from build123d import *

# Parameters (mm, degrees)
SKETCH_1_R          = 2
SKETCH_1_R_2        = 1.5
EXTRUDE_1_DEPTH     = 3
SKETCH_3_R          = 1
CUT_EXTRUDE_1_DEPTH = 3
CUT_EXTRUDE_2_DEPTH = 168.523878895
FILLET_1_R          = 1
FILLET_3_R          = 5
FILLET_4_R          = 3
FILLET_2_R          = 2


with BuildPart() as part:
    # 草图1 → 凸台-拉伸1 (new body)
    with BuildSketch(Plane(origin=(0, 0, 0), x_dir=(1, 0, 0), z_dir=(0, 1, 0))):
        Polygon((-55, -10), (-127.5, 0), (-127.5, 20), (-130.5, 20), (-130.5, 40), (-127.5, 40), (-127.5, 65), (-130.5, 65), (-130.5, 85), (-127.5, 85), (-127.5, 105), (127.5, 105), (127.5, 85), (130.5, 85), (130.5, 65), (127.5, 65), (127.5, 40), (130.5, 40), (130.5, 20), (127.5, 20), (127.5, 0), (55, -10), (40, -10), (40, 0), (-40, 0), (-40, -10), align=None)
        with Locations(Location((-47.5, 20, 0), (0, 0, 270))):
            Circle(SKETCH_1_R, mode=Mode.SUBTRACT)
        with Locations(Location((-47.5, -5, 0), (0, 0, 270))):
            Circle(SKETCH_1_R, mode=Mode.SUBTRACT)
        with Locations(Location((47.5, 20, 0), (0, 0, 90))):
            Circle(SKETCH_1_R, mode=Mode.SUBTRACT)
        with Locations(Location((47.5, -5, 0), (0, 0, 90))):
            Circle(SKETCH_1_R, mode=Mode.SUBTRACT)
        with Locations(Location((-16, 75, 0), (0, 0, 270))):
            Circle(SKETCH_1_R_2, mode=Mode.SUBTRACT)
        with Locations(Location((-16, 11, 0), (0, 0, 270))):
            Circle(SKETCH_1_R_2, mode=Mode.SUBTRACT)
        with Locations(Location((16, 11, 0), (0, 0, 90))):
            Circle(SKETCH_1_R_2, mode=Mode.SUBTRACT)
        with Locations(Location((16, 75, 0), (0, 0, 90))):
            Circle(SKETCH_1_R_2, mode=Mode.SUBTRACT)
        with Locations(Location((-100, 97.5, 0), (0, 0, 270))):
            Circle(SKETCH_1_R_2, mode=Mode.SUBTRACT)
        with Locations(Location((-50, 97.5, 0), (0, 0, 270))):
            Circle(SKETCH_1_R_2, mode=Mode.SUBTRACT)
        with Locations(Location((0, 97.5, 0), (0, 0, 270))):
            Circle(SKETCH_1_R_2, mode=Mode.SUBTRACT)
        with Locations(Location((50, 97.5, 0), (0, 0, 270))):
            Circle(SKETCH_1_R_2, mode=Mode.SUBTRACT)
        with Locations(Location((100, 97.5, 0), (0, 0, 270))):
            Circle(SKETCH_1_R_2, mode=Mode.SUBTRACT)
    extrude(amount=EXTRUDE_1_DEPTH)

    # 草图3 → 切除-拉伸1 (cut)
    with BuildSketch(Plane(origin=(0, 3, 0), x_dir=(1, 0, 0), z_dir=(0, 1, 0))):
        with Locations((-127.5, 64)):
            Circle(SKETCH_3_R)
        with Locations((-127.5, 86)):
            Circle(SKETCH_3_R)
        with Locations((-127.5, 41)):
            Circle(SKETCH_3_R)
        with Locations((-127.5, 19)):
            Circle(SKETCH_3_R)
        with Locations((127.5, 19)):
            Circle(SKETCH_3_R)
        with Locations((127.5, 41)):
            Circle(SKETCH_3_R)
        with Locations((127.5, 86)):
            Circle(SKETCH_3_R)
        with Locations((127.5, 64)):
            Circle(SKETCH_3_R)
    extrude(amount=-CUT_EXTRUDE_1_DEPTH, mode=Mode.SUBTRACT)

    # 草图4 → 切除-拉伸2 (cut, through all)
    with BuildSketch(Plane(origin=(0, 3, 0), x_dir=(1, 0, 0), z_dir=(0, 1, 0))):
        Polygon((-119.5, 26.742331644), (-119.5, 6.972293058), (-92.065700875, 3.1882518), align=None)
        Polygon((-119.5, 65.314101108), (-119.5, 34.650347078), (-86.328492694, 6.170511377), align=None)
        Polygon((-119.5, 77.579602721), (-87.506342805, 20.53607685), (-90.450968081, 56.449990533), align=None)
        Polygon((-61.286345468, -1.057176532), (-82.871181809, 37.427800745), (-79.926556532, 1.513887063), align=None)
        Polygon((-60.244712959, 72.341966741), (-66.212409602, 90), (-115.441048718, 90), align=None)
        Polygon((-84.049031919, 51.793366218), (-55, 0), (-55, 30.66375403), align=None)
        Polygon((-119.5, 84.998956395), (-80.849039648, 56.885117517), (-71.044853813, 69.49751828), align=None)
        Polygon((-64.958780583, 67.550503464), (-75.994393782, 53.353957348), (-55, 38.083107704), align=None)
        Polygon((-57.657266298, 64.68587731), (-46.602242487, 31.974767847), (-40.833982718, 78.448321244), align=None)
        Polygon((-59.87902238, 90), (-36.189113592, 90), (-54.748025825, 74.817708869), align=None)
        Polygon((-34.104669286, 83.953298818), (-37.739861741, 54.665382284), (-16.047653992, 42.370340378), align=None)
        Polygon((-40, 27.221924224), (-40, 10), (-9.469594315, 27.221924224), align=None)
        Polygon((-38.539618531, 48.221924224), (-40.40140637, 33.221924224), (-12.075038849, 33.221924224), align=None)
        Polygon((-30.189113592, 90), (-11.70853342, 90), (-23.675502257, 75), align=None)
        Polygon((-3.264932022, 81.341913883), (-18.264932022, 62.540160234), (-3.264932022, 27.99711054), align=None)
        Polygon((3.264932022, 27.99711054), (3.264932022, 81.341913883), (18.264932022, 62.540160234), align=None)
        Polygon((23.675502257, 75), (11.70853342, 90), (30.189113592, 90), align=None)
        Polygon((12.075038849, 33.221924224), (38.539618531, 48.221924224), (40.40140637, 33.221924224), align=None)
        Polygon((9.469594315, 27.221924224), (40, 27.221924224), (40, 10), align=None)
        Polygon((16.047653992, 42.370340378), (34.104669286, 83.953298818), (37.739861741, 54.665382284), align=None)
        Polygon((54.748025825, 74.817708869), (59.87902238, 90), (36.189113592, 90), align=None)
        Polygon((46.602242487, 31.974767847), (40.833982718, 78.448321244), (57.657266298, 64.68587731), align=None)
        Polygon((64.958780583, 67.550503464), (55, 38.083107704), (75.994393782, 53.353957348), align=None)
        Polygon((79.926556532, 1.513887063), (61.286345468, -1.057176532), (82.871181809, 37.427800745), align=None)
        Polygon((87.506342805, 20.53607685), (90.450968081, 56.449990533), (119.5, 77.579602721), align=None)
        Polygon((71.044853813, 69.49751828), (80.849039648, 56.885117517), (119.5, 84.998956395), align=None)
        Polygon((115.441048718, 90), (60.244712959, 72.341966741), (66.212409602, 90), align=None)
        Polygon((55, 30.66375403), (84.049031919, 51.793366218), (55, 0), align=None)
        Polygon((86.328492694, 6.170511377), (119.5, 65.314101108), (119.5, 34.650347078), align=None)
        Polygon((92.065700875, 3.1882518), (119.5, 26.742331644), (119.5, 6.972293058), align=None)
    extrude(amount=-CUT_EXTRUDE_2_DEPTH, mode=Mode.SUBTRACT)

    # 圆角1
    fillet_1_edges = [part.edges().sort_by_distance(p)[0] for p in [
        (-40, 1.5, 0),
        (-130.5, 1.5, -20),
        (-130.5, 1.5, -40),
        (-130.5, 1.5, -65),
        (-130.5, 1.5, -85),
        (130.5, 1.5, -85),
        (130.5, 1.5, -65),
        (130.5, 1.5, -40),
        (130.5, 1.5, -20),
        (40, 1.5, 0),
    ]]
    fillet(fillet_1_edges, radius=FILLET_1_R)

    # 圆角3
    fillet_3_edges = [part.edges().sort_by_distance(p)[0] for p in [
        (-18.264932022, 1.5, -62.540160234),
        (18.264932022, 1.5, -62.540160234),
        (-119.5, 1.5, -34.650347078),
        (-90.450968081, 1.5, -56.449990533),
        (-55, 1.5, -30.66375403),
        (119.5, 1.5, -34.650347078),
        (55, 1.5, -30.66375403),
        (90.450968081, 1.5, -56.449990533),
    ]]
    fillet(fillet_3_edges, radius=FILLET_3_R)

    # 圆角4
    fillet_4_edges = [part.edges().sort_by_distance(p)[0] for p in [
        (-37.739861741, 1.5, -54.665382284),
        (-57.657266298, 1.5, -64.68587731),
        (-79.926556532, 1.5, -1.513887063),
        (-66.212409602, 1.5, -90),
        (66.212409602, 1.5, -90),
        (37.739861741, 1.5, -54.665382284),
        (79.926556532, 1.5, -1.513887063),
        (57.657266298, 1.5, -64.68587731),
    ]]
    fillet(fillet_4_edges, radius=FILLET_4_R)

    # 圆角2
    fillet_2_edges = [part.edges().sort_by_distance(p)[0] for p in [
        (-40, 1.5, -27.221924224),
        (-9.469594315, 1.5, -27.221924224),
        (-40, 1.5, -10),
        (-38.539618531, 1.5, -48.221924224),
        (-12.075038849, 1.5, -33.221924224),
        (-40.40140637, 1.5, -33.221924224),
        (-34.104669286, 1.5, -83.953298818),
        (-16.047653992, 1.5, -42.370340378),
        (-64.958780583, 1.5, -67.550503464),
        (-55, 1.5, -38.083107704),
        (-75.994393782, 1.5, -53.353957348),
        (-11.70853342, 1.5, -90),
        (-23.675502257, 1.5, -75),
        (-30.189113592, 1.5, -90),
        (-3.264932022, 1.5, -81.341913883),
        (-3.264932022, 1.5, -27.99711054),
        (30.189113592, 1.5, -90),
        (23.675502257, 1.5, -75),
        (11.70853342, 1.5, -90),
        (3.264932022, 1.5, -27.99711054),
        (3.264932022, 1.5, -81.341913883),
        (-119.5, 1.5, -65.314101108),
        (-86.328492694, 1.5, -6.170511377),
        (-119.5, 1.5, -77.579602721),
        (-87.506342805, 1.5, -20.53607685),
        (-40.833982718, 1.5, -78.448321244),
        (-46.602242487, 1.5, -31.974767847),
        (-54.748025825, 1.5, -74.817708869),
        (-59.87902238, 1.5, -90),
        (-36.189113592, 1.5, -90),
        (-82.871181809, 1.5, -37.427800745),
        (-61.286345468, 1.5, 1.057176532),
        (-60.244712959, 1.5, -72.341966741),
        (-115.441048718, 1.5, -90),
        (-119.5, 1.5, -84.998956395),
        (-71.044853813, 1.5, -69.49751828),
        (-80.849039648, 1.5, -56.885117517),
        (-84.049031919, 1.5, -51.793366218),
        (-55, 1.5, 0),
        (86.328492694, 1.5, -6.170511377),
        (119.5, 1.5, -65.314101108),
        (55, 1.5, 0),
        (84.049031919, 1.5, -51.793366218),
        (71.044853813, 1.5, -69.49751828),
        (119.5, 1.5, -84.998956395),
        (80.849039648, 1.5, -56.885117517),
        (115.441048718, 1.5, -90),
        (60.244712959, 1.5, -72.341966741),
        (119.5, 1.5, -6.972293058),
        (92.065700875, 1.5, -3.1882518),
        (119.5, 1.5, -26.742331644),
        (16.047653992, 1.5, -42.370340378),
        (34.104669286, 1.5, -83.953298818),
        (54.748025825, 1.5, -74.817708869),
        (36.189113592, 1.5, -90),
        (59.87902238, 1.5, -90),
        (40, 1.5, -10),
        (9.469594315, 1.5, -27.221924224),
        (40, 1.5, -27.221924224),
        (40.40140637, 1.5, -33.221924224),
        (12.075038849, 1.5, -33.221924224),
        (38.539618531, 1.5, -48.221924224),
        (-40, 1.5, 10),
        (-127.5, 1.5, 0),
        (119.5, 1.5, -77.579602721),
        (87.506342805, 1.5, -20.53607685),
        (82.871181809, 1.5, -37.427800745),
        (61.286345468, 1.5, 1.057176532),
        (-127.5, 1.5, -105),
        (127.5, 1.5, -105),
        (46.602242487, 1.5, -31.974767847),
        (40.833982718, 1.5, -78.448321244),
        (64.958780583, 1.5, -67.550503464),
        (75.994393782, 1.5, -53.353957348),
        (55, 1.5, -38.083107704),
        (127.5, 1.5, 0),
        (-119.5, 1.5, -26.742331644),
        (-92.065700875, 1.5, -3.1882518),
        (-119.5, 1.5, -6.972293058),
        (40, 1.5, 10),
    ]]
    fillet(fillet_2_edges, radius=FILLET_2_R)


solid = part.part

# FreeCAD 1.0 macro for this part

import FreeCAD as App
import Part
import Sketcher
from FreeCAD import Vector
Q = App.Units.Quantity


def edges_at(feature, points):
    """Names of the edges that pass closest to the given points."""
    edges = feature.Shape.Edges
    near = lambda p: min(range(len(edges)), key=lambda i: edges[i].distToShape(Part.Vertex(*p))[0])
    return sorted({f"Edge{near(p) + 1}" for p in points})

doc = App.newDocument("Part")
body = doc.addObject("PartDesign::Body", "Body")

sketch1 = body.newObject("Sketcher::SketchObject", "Sketch")
sketch1.AttachmentSupport = (doc.getObject("XZ_Plane"), [""])
sketch1.MapMode = "FlatFace"
sketch1.addGeometry([
    Part.LineSegment(Vector(-127.5, 0, 0), Vector(-55, 10, 0)),
    Part.LineSegment(Vector(-55, 10, 0), Vector(-40, 10, 0)),
    Part.LineSegment(Vector(-40, 10, 0), Vector(-40, 0, 0)),
    Part.LineSegment(Vector(-40, 0, 0), Vector(40, 0, 0)),
    Part.LineSegment(Vector(40, 0, 0), Vector(40, 10, 0)),
    Part.LineSegment(Vector(40, 10, 0), Vector(55, 10, 0)),
    Part.LineSegment(Vector(55, 10, 0), Vector(127.5, 0, 0)),
    Part.LineSegment(Vector(127.5, 0, 0), Vector(127.5, -20, 0)),
    Part.LineSegment(Vector(127.5, -20, 0), Vector(130.5, -20, 0)),
    Part.LineSegment(Vector(130.5, -20, 0), Vector(130.5, -40, 0)),
    Part.LineSegment(Vector(130.5, -40, 0), Vector(127.5, -40, 0)),
    Part.LineSegment(Vector(127.5, -40, 0), Vector(127.5, -65, 0)),
    Part.LineSegment(Vector(127.5, -65, 0), Vector(130.5, -65, 0)),
    Part.LineSegment(Vector(130.5, -65, 0), Vector(130.5, -85, 0)),
    Part.LineSegment(Vector(130.5, -85, 0), Vector(127.5, -85, 0)),
    Part.LineSegment(Vector(127.5, -85, 0), Vector(127.5, -105, 0)),
    Part.LineSegment(Vector(127.5, -105, 0), Vector(-127.5, -105, 0)),
    Part.LineSegment(Vector(-127.5, -105, 0), Vector(-127.5, -85, 0)),
    Part.LineSegment(Vector(-127.5, -85, 0), Vector(-130.5, -85, 0)),
    Part.LineSegment(Vector(-130.5, -85, 0), Vector(-130.5, -65, 0)),
    Part.LineSegment(Vector(-130.5, -65, 0), Vector(-127.5, -65, 0)),
    Part.LineSegment(Vector(-127.5, -65, 0), Vector(-127.5, -40, 0)),
    Part.LineSegment(Vector(-127.5, -40, 0), Vector(-130.5, -40, 0)),
    Part.LineSegment(Vector(-130.5, -40, 0), Vector(-130.5, -20, 0)),
    Part.LineSegment(Vector(-130.5, -20, 0), Vector(-127.5, -20, 0)),
    Part.LineSegment(Vector(-127.5, -20, 0), Vector(-127.5, 0, 0)),
    Part.Circle(Vector(47.5, 5, 0), Vector(0, 0, 1), 2),
    Part.Circle(Vector(16, -11, 0), Vector(0, 0, 1), 1.5),
    Part.Circle(Vector(47.5, -20, 0), Vector(0, 0, 1), 2),
    Part.Circle(Vector(-47.5, 5, 0), Vector(0, 0, 1), 2),
    Part.Circle(Vector(-16, -11, 0), Vector(0, 0, 1), 1.5),
    Part.Circle(Vector(-47.5, -20, 0), Vector(0, 0, 1), 2),
    Part.Circle(Vector(100, -97.5, 0), Vector(0, 0, 1), 1.5),
    Part.Circle(Vector(16, -75, 0), Vector(0, 0, 1), 1.5),
    Part.Circle(Vector(50, -97.5, 0), Vector(0, 0, 1), 1.5),
    Part.Circle(Vector(-16, -75, 0), Vector(0, 0, 1), 1.5),
    Part.Circle(Vector(0, -97.5, 0), Vector(0, 0, 1), 1.5),
    Part.Circle(Vector(-50, -97.5, 0), Vector(0, 0, 1), 1.5),
    Part.Circle(Vector(-100, -97.5, 0), Vector(0, 0, 1), 1.5),
], False)
sketch1.addConstraint([
    Sketcher.Constraint("Coincident", 0, 2, 1, 1),
    Sketcher.Constraint("Coincident", 1, 2, 2, 1),
    Sketcher.Constraint("Coincident", 2, 2, 3, 1),
    Sketcher.Constraint("Coincident", 3, 2, 4, 1),
    Sketcher.Constraint("Coincident", 4, 2, 5, 1),
    Sketcher.Constraint("Coincident", 5, 2, 6, 1),
    Sketcher.Constraint("Coincident", 6, 2, 7, 1),
    Sketcher.Constraint("Coincident", 7, 2, 8, 1),
    Sketcher.Constraint("Coincident", 8, 2, 9, 1),
    Sketcher.Constraint("Coincident", 9, 2, 10, 1),
    Sketcher.Constraint("Coincident", 10, 2, 11, 1),
    Sketcher.Constraint("Coincident", 11, 2, 12, 1),
    Sketcher.Constraint("Coincident", 12, 2, 13, 1),
    Sketcher.Constraint("Coincident", 13, 2, 14, 1),
    Sketcher.Constraint("Coincident", 14, 2, 15, 1),
    Sketcher.Constraint("Coincident", 15, 2, 16, 1),
    Sketcher.Constraint("Coincident", 16, 2, 17, 1),
    Sketcher.Constraint("Coincident", 17, 2, 18, 1),
    Sketcher.Constraint("Coincident", 18, 2, 19, 1),
    Sketcher.Constraint("Coincident", 19, 2, 20, 1),
    Sketcher.Constraint("Coincident", 20, 2, 21, 1),
    Sketcher.Constraint("Coincident", 21, 2, 22, 1),
    Sketcher.Constraint("Coincident", 22, 2, 23, 1),
    Sketcher.Constraint("Coincident", 23, 2, 24, 1),
    Sketcher.Constraint("Coincident", 24, 2, 25, 1),
    Sketcher.Constraint("Coincident", 25, 2, 0, 1),
    Sketcher.Constraint("Horizontal", 1),
    Sketcher.Constraint("Vertical", 2),
    Sketcher.Constraint("Horizontal", 3),
    Sketcher.Constraint("Vertical", 4),
    Sketcher.Constraint("Horizontal", 5),
    Sketcher.Constraint("Vertical", 7),
    Sketcher.Constraint("Horizontal", 8),
    Sketcher.Constraint("Vertical", 9),
    Sketcher.Constraint("Horizontal", 10),
    Sketcher.Constraint("Vertical", 11),
    Sketcher.Constraint("Horizontal", 12),
    Sketcher.Constraint("Vertical", 13),
    Sketcher.Constraint("Horizontal", 14),
    Sketcher.Constraint("Vertical", 15),
    Sketcher.Constraint("Horizontal", 16),
    Sketcher.Constraint("Vertical", 17),
    Sketcher.Constraint("Horizontal", 18),
    Sketcher.Constraint("Vertical", 19),
    Sketcher.Constraint("Horizontal", 20),
    Sketcher.Constraint("Vertical", 21),
    Sketcher.Constraint("Horizontal", 22),
    Sketcher.Constraint("Vertical", 23),
    Sketcher.Constraint("Horizontal", 24),
    Sketcher.Constraint("Vertical", 25),
    Sketcher.Constraint("Equal", 26, 28),
    Sketcher.Constraint("Equal", 28, 29),
    Sketcher.Constraint("Equal", 27, 30),
    Sketcher.Constraint("Equal", 29, 31),
    Sketcher.Constraint("Equal", 30, 32),
    Sketcher.Constraint("Equal", 32, 33),
    Sketcher.Constraint("Equal", 33, 34),
    Sketcher.Constraint("Equal", 34, 35),
    Sketcher.Constraint("Equal", 35, 36),
    Sketcher.Constraint("Equal", 36, 37),
    Sketcher.Constraint("Equal", 37, 38),
    Sketcher.Constraint("Symmetric", 2, 2, 3, 2, -1, 1),
    Sketcher.Constraint("Symmetric", 6, 2, 25, 2, -1, 1),
    Sketcher.Constraint("Symmetric", 26, 3, 29, 3, -2),
    Sketcher.Constraint("Symmetric", 27, 3, 30, 3, -2),
    Sketcher.Constraint("Symmetric", 28, 3, 31, 3, -2),
    Sketcher.Constraint("Symmetric", 33, 3, 35, 3, -2),
    Sketcher.Constraint("Symmetric", 34, 3, 37, 3, -2),
    Sketcher.Constraint("Symmetric", 32, 3, 38, 3, -2),
    Sketcher.Constraint("Symmetric", 0, 2, 5, 2, -2),
    Sketcher.Constraint("Symmetric", 14, 2, 17, 2, -2),
    Sketcher.Constraint("Symmetric", 12, 2, 19, 2, -2),
    Sketcher.Constraint("Symmetric", 10, 2, 21, 2, -2),
    Sketcher.Constraint("Symmetric", 8, 2, 23, 2, -2),
    Sketcher.Constraint("PointOnObject", 36, 3, -2),
    Sketcher.Constraint("PointOnObject", 6, 2, -1),
    Sketcher.Constraint("Horizontal", 32, 3, 34, 3),
    Sketcher.Constraint("Horizontal", 34, 3, 36, 3),
    Sketcher.Constraint("Horizontal", 31, 3, 7, 2),
    Sketcher.Constraint("Vertical", 26, 3, 28, 3),
    Sketcher.Constraint("Vertical", 27, 3, 33, 3),
    Sketcher.Constraint("Vertical", 7, 2, 10, 2),
    Sketcher.Constraint("Vertical", 9, 2, 12, 2),
    Sketcher.Constraint("Vertical", 11, 2, 14, 2),
    Sketcher.Constraint("Equal", 7, 9),
    Sketcher.Constraint("Equal", 9, 13),
    Sketcher.Constraint("Equal", 13, 15),
    Sketcher.Constraint("Diameter", 26, Q("4 mm")),
    Sketcher.Constraint("Diameter", 27, Q("3 mm")),
    Sketcher.Constraint("DistanceX", 1, 1, 1, 2, Q("15 mm")),
    Sketcher.Constraint("DistanceX", 3, 1, 3, 2, Q("80 mm")),
    Sketcher.Constraint("DistanceX", 8, 1, 8, 2, Q("3 mm")),
    Sketcher.Constraint("DistanceX", 16, 2, 16, 1, Q("255 mm")),
    Sketcher.Constraint("DistanceY", 2, 2, 2, 1, Q("10 mm")),
    Sketcher.Constraint("DistanceY", 7, 2, 7, 1, Q("20 mm")),
    Sketcher.Constraint("DistanceY", 11, 2, 11, 1, Q("25 mm")),
    Sketcher.Constraint("DistanceY", -1, 1, 26, 3, Q("5 mm")),
    Sketcher.Constraint("DistanceX", -1, 1, 27, 3, Q("16 mm")),
    Sketcher.Constraint("DistanceY", 27, 3, -1, 1, Q("11 mm")),
    Sketcher.Constraint("DistanceX", -1, 1, 32, 3, Q("100 mm")),
    Sketcher.Constraint("DistanceY", 33, 3, -1, 1, Q("75 mm")),
    Sketcher.Constraint("DistanceX", -1, 1, 34, 3, Q("50 mm")),
    Sketcher.Constraint("DistanceX", 29, 3, 26, 3, Q("95 mm")),
    Sketcher.Constraint("DistanceY", 32, 3, -1, 1, Q("97.5 mm")),
])
pad1 = body.newObject("PartDesign::Pad", "Pad")
pad1.Profile = sketch1
pad1.Length = 3
pad1.Reversed = True

sketch2 = body.newObject("Sketcher::SketchObject", "Sketch001")
sketch2.AttachmentSupport = (doc.getObject("XZ_Plane"), [""])
sketch2.MapMode = "FlatFace"
sketch2.AttachmentOffset = App.Placement(Vector(0, 0, -3), App.Rotation())
sketch2.addGeometry([
    Part.Circle(Vector(-127.5, -64, 0), Vector(0, 0, 1), 1),
    Part.Circle(Vector(-127.5, -86, 0), Vector(0, 0, 1), 1),
    Part.Circle(Vector(-127.5, -41, 0), Vector(0, 0, 1), 1),
    Part.Circle(Vector(-127.5, -19, 0), Vector(0, 0, 1), 1),
    Part.Circle(Vector(127.5, -19, 0), Vector(0, 0, 1), 1),
    Part.Circle(Vector(127.5, -41, 0), Vector(0, 0, 1), 1),
    Part.Circle(Vector(127.5, -86, 0), Vector(0, 0, 1), 1),
    Part.Circle(Vector(127.5, -64, 0), Vector(0, 0, 1), 1),
], False)
sketch2.addConstraint([
    Sketcher.Constraint("Equal", 0, 1),
    Sketcher.Constraint("Equal", 1, 2),
    Sketcher.Constraint("Equal", 2, 3),
    Sketcher.Constraint("Equal", 3, 4),
    Sketcher.Constraint("Equal", 4, 5),
    Sketcher.Constraint("Equal", 5, 6),
    Sketcher.Constraint("Equal", 6, 7),
    Sketcher.Constraint("Symmetric", 3, 3, 4, 3, -2),
    Sketcher.Constraint("Symmetric", 2, 3, 5, 3, -2),
    Sketcher.Constraint("Symmetric", 1, 3, 6, 3, -2),
    Sketcher.Constraint("Symmetric", 0, 3, 7, 3, -2),
    Sketcher.Constraint("Vertical", 0, 3, 1, 3),
    Sketcher.Constraint("Vertical", 1, 3, 2, 3),
    Sketcher.Constraint("Vertical", 2, 3, 3, 3),
    Sketcher.Constraint("Diameter", 0, Q("2 mm")),
    Sketcher.Constraint("DistanceY", 0, 3, -1, 1, Q("64 mm")),
    Sketcher.Constraint("DistanceY", 1, 3, -1, 1, Q("86 mm")),
    Sketcher.Constraint("DistanceY", 2, 3, -1, 1, Q("41 mm")),
    Sketcher.Constraint("DistanceY", 3, 3, -1, 1, Q("19 mm")),
    Sketcher.Constraint("DistanceX", 3, 3, 4, 3, Q("255 mm")),
])
pocket1 = body.newObject("PartDesign::Pocket", "Pocket")
pocket1.Profile = sketch2
pocket1.Length = 3
pocket1.Reversed = True

sketch3 = body.newObject("Sketcher::SketchObject", "Sketch002")
sketch3.AttachmentSupport = (doc.getObject("XZ_Plane"), [""])
sketch3.MapMode = "FlatFace"
sketch3.AttachmentOffset = App.Placement(Vector(0, 0, -3), App.Rotation())
sketch3.addGeometry([
    Part.LineSegment(Vector(-119.5, -26.742332, 0), Vector(-119.5, -6.972293, 0)),
    Part.LineSegment(Vector(-119.5, -6.972293, 0), Vector(-92.065701, -3.188252, 0)),
    Part.LineSegment(Vector(-92.065701, -3.188252, 0), Vector(-119.5, -26.742332, 0)),
    Part.LineSegment(Vector(-119.5, -65.314101, 0), Vector(-119.5, -34.650347, 0)),
    Part.LineSegment(Vector(-119.5, -34.650347, 0), Vector(-86.328493, -6.170511, 0)),
    Part.LineSegment(Vector(-86.328493, -6.170511, 0), Vector(-119.5, -65.314101, 0)),
    Part.LineSegment(Vector(-119.5, -77.579603, 0), Vector(-87.506343, -20.536077, 0)),
    Part.LineSegment(Vector(-87.506343, -20.536077, 0), Vector(-90.450968, -56.449991, 0)),
    Part.LineSegment(Vector(-90.450968, -56.449991, 0), Vector(-119.5, -77.579603, 0)),
    Part.LineSegment(Vector(-61.286345, 1.057177, 0), Vector(-82.871182, -37.427801, 0)),
    Part.LineSegment(Vector(-82.871182, -37.427801, 0), Vector(-79.926557, -1.513887, 0)),
    Part.LineSegment(Vector(-79.926557, -1.513887, 0), Vector(-61.286345, 1.057177, 0)),
    Part.LineSegment(Vector(-60.244713, -72.341967, 0), Vector(-66.21241, -90, 0)),
    Part.LineSegment(Vector(-66.21241, -90, 0), Vector(-115.441049, -90, 0)),
    Part.LineSegment(Vector(-115.441049, -90, 0), Vector(-60.244713, -72.341967, 0)),
    Part.LineSegment(Vector(-84.049032, -51.793366, 0), Vector(-55, 0, 0)),
    Part.LineSegment(Vector(-55, 0, 0), Vector(-55, -30.663754, 0)),
    Part.LineSegment(Vector(-55, -30.663754, 0), Vector(-84.049032, -51.793366, 0)),
    Part.LineSegment(Vector(-119.5, -84.998956, 0), Vector(-80.84904, -56.885118, 0)),
    Part.LineSegment(Vector(-80.84904, -56.885118, 0), Vector(-71.044854, -69.497518, 0)),
    Part.LineSegment(Vector(-71.044854, -69.497518, 0), Vector(-119.5, -84.998956, 0)),
    Part.LineSegment(Vector(-64.958781, -67.550503, 0), Vector(-75.994394, -53.353957, 0)),
    Part.LineSegment(Vector(-75.994394, -53.353957, 0), Vector(-55, -38.083108, 0)),
    Part.LineSegment(Vector(-55, -38.083108, 0), Vector(-64.958781, -67.550503, 0)),
    Part.LineSegment(Vector(-57.657266, -64.685877, 0), Vector(-46.602242, -31.974768, 0)),
    Part.LineSegment(Vector(-46.602242, -31.974768, 0), Vector(-40.833983, -78.448321, 0)),
    Part.LineSegment(Vector(-40.833983, -78.448321, 0), Vector(-57.657266, -64.685877, 0)),
    Part.LineSegment(Vector(-36.189114, -90, 0), Vector(-59.879022, -90, 0)),
    Part.LineSegment(Vector(-59.879022, -90, 0), Vector(-54.748026, -74.817709, 0)),
    Part.LineSegment(Vector(-54.748026, -74.817709, 0), Vector(-36.189114, -90, 0)),
    Part.LineSegment(Vector(-34.104669, -83.953299, 0), Vector(-37.739862, -54.665382, 0)),
    Part.LineSegment(Vector(-37.739862, -54.665382, 0), Vector(-16.047654, -42.37034, 0)),
    Part.LineSegment(Vector(-16.047654, -42.37034, 0), Vector(-34.104669, -83.953299, 0)),
    Part.LineSegment(Vector(-40, -27.221924, 0), Vector(-40, -10, 0)),
    Part.LineSegment(Vector(-40, -10, 0), Vector(-9.469594, -27.221924, 0)),
    Part.LineSegment(Vector(-9.469594, -27.221924, 0), Vector(-40, -27.221924, 0)),
    Part.LineSegment(Vector(-38.539619, -48.221924, 0), Vector(-40.401406, -33.221924, 0)),
    Part.LineSegment(Vector(-40.401406, -33.221924, 0), Vector(-12.075039, -33.221924, 0)),
    Part.LineSegment(Vector(-12.075039, -33.221924, 0), Vector(-38.539619, -48.221924, 0)),
    Part.LineSegment(Vector(-11.708533, -90, 0), Vector(-30.189114, -90, 0)),
    Part.LineSegment(Vector(-30.189114, -90, 0), Vector(-23.675502, -75, 0)),
    Part.LineSegment(Vector(-23.675502, -75, 0), Vector(-11.708533, -90, 0)),
    Part.LineSegment(Vector(-3.264932, -81.341914, 0), Vector(-18.264932, -62.54016, 0)),
    Part.LineSegment(Vector(-18.264932, -62.54016, 0), Vector(-3.264932, -27.997111, 0)),
    Part.LineSegment(Vector(-3.264932, -27.997111, 0), Vector(-3.264932, -81.341914, 0)),
    Part.LineSegment(Vector(3.264932, -81.341914, 0), Vector(3.264932, -27.997111, 0)),
    Part.LineSegment(Vector(3.264932, -27.997111, 0), Vector(18.264932, -62.54016, 0)),
    Part.LineSegment(Vector(18.264932, -62.54016, 0), Vector(3.264932, -81.341914, 0)),
    Part.LineSegment(Vector(11.708533, -90, 0), Vector(23.675502, -75, 0)),
    Part.LineSegment(Vector(23.675502, -75, 0), Vector(30.189114, -90, 0)),
    Part.LineSegment(Vector(30.189114, -90, 0), Vector(11.708533, -90, 0)),
    Part.LineSegment(Vector(38.539619, -48.221924, 0), Vector(12.075039, -33.221924, 0)),
    Part.LineSegment(Vector(12.075039, -33.221924, 0), Vector(40.401406, -33.221924, 0)),
    Part.LineSegment(Vector(40.401406, -33.221924, 0), Vector(38.539619, -48.221924, 0)),
    Part.LineSegment(Vector(40, -27.221924, 0), Vector(9.469594, -27.221924, 0)),
    Part.LineSegment(Vector(9.469594, -27.221924, 0), Vector(40, -10, 0)),
    Part.LineSegment(Vector(40, -10, 0), Vector(40, -27.221924, 0)),
    Part.LineSegment(Vector(34.104669, -83.953299, 0), Vector(16.047654, -42.37034, 0)),
    Part.LineSegment(Vector(16.047654, -42.37034, 0), Vector(37.739862, -54.665382, 0)),
    Part.LineSegment(Vector(37.739862, -54.665382, 0), Vector(34.104669, -83.953299, 0)),
    Part.LineSegment(Vector(54.748026, -74.817709, 0), Vector(59.879022, -90, 0)),
    Part.LineSegment(Vector(59.879022, -90, 0), Vector(36.189114, -90, 0)),
    Part.LineSegment(Vector(36.189114, -90, 0), Vector(54.748026, -74.817709, 0)),
    Part.LineSegment(Vector(40.833983, -78.448321, 0), Vector(46.602242, -31.974768, 0)),
    Part.LineSegment(Vector(46.602242, -31.974768, 0), Vector(57.657266, -64.685877, 0)),
    Part.LineSegment(Vector(57.657266, -64.685877, 0), Vector(40.833983, -78.448321, 0)),
    Part.LineSegment(Vector(64.958781, -67.550503, 0), Vector(55, -38.083108, 0)),
    Part.LineSegment(Vector(55, -38.083108, 0), Vector(75.994394, -53.353957, 0)),
    Part.LineSegment(Vector(75.994394, -53.353957, 0), Vector(64.958781, -67.550503, 0)),
    Part.LineSegment(Vector(61.286345, 1.057177, 0), Vector(79.926557, -1.513887, 0)),
    Part.LineSegment(Vector(79.926557, -1.513887, 0), Vector(82.871182, -37.427801, 0)),
    Part.LineSegment(Vector(82.871182, -37.427801, 0), Vector(61.286345, 1.057177, 0)),
    Part.LineSegment(Vector(90.450968, -56.449991, 0), Vector(87.506343, -20.536077, 0)),
    Part.LineSegment(Vector(87.506343, -20.536077, 0), Vector(119.5, -77.579603, 0)),
    Part.LineSegment(Vector(119.5, -77.579603, 0), Vector(90.450968, -56.449991, 0)),
    Part.LineSegment(Vector(71.044854, -69.497518, 0), Vector(80.84904, -56.885118, 0)),
    Part.LineSegment(Vector(80.84904, -56.885118, 0), Vector(119.5, -84.998956, 0)),
    Part.LineSegment(Vector(119.5, -84.998956, 0), Vector(71.044854, -69.497518, 0)),
    Part.LineSegment(Vector(60.244713, -72.341967, 0), Vector(115.441049, -90, 0)),
    Part.LineSegment(Vector(115.441049, -90, 0), Vector(66.21241, -90, 0)),
    Part.LineSegment(Vector(66.21241, -90, 0), Vector(60.244713, -72.341967, 0)),
    Part.LineSegment(Vector(84.049032, -51.793366, 0), Vector(55, -30.663754, 0)),
    Part.LineSegment(Vector(55, -30.663754, 0), Vector(55, 0, 0)),
    Part.LineSegment(Vector(55, 0, 0), Vector(84.049032, -51.793366, 0)),
    Part.LineSegment(Vector(119.5, -65.314101, 0), Vector(86.328493, -6.170511, 0)),
    Part.LineSegment(Vector(86.328493, -6.170511, 0), Vector(119.5, -34.650347, 0)),
    Part.LineSegment(Vector(119.5, -34.650347, 0), Vector(119.5, -65.314101, 0)),
    Part.LineSegment(Vector(119.5, -26.742332, 0), Vector(92.065701, -3.188252, 0)),
    Part.LineSegment(Vector(92.065701, -3.188252, 0), Vector(119.5, -6.972293, 0)),
    Part.LineSegment(Vector(119.5, -6.972293, 0), Vector(119.5, -26.742332, 0)),
], False)
sketch3.addConstraint([
    Sketcher.Constraint("Coincident", 0, 2, 1, 1),
    Sketcher.Constraint("Coincident", 1, 2, 2, 1),
    Sketcher.Constraint("Coincident", 2, 2, 0, 1),
    Sketcher.Constraint("Coincident", 3, 2, 4, 1),
    Sketcher.Constraint("Coincident", 4, 2, 5, 1),
    Sketcher.Constraint("Coincident", 5, 2, 3, 1),
    Sketcher.Constraint("Coincident", 6, 2, 7, 1),
    Sketcher.Constraint("Coincident", 7, 2, 8, 1),
    Sketcher.Constraint("Coincident", 8, 2, 6, 1),
    Sketcher.Constraint("Coincident", 9, 2, 10, 1),
    Sketcher.Constraint("Coincident", 10, 2, 11, 1),
    Sketcher.Constraint("Coincident", 11, 2, 9, 1),
    Sketcher.Constraint("Coincident", 12, 2, 13, 1),
    Sketcher.Constraint("Coincident", 13, 2, 14, 1),
    Sketcher.Constraint("Coincident", 14, 2, 12, 1),
    Sketcher.Constraint("Coincident", 15, 2, 16, 1),
    Sketcher.Constraint("Coincident", 16, 2, 17, 1),
    Sketcher.Constraint("Coincident", 17, 2, 15, 1),
    Sketcher.Constraint("Coincident", 18, 2, 19, 1),
    Sketcher.Constraint("Coincident", 19, 2, 20, 1),
    Sketcher.Constraint("Coincident", 20, 2, 18, 1),
    Sketcher.Constraint("Coincident", 21, 2, 22, 1),
    Sketcher.Constraint("Coincident", 22, 2, 23, 1),
    Sketcher.Constraint("Coincident", 23, 2, 21, 1),
    Sketcher.Constraint("Coincident", 24, 2, 25, 1),
    Sketcher.Constraint("Coincident", 25, 2, 26, 1),
    Sketcher.Constraint("Coincident", 26, 2, 24, 1),
    Sketcher.Constraint("Coincident", 27, 2, 28, 1),
    Sketcher.Constraint("Coincident", 28, 2, 29, 1),
    Sketcher.Constraint("Coincident", 29, 2, 27, 1),
    Sketcher.Constraint("Coincident", 30, 2, 31, 1),
    Sketcher.Constraint("Coincident", 31, 2, 32, 1),
    Sketcher.Constraint("Coincident", 32, 2, 30, 1),
    Sketcher.Constraint("Coincident", 33, 2, 34, 1),
    Sketcher.Constraint("Coincident", 34, 2, 35, 1),
    Sketcher.Constraint("Coincident", 35, 2, 33, 1),
    Sketcher.Constraint("Coincident", 36, 2, 37, 1),
    Sketcher.Constraint("Coincident", 37, 2, 38, 1),
    Sketcher.Constraint("Coincident", 38, 2, 36, 1),
    Sketcher.Constraint("Coincident", 39, 2, 40, 1),
    Sketcher.Constraint("Coincident", 40, 2, 41, 1),
    Sketcher.Constraint("Coincident", 41, 2, 39, 1),
    Sketcher.Constraint("Coincident", 42, 2, 43, 1),
    Sketcher.Constraint("Coincident", 43, 2, 44, 1),
    Sketcher.Constraint("Coincident", 44, 2, 42, 1),
    Sketcher.Constraint("Coincident", 45, 2, 46, 1),
    Sketcher.Constraint("Coincident", 46, 2, 47, 1),
    Sketcher.Constraint("Coincident", 47, 2, 45, 1),
    Sketcher.Constraint("Coincident", 48, 2, 49, 1),
    Sketcher.Constraint("Coincident", 49, 2, 50, 1),
    Sketcher.Constraint("Coincident", 50, 2, 48, 1),
    Sketcher.Constraint("Coincident", 51, 2, 52, 1),
    Sketcher.Constraint("Coincident", 52, 2, 53, 1),
    Sketcher.Constraint("Coincident", 53, 2, 51, 1),
    Sketcher.Constraint("Coincident", 54, 2, 55, 1),
    Sketcher.Constraint("Coincident", 55, 2, 56, 1),
    Sketcher.Constraint("Coincident", 56, 2, 54, 1),
    Sketcher.Constraint("Coincident", 57, 2, 58, 1),
    Sketcher.Constraint("Coincident", 58, 2, 59, 1),
    Sketcher.Constraint("Coincident", 59, 2, 57, 1),
    Sketcher.Constraint("Coincident", 60, 2, 61, 1),
    Sketcher.Constraint("Coincident", 61, 2, 62, 1),
    Sketcher.Constraint("Coincident", 62, 2, 60, 1),
    Sketcher.Constraint("Coincident", 63, 2, 64, 1),
    Sketcher.Constraint("Coincident", 64, 2, 65, 1),
    Sketcher.Constraint("Coincident", 65, 2, 63, 1),
    Sketcher.Constraint("Coincident", 66, 2, 67, 1),
    Sketcher.Constraint("Coincident", 67, 2, 68, 1),
    Sketcher.Constraint("Coincident", 68, 2, 66, 1),
    Sketcher.Constraint("Coincident", 69, 2, 70, 1),
    Sketcher.Constraint("Coincident", 70, 2, 71, 1),
    Sketcher.Constraint("Coincident", 71, 2, 69, 1),
    Sketcher.Constraint("Coincident", 72, 2, 73, 1),
    Sketcher.Constraint("Coincident", 73, 2, 74, 1),
    Sketcher.Constraint("Coincident", 74, 2, 72, 1),
    Sketcher.Constraint("Coincident", 75, 2, 76, 1),
    Sketcher.Constraint("Coincident", 76, 2, 77, 1),
    Sketcher.Constraint("Coincident", 77, 2, 75, 1),
    Sketcher.Constraint("Coincident", 78, 2, 79, 1),
    Sketcher.Constraint("Coincident", 79, 2, 80, 1),
    Sketcher.Constraint("Coincident", 80, 2, 78, 1),
    Sketcher.Constraint("Coincident", 81, 2, 82, 1),
    Sketcher.Constraint("Coincident", 82, 2, 83, 1),
    Sketcher.Constraint("Coincident", 83, 2, 81, 1),
    Sketcher.Constraint("Coincident", 84, 2, 85, 1),
    Sketcher.Constraint("Coincident", 85, 2, 86, 1),
    Sketcher.Constraint("Coincident", 86, 2, 84, 1),
    Sketcher.Constraint("Coincident", 87, 2, 88, 1),
    Sketcher.Constraint("Coincident", 88, 2, 89, 1),
    Sketcher.Constraint("Coincident", 89, 2, 87, 1),
    Sketcher.Constraint("Vertical", 0),
    Sketcher.Constraint("Vertical", 3),
    Sketcher.Constraint("Horizontal", 13),
    Sketcher.Constraint("Vertical", 16),
    Sketcher.Constraint("Horizontal", 27),
    Sketcher.Constraint("Vertical", 33),
    Sketcher.Constraint("Horizontal", 35),
    Sketcher.Constraint("Horizontal", 37),
    Sketcher.Constraint("Horizontal", 39),
    Sketcher.Constraint("Vertical", 44),
    Sketcher.Constraint("Vertical", 45),
    Sketcher.Constraint("Horizontal", 50),
    Sketcher.Constraint("Horizontal", 52),
    Sketcher.Constraint("Horizontal", 54),
    Sketcher.Constraint("Vertical", 56),
    Sketcher.Constraint("Horizontal", 61),
    Sketcher.Constraint("Horizontal", 79),
    Sketcher.Constraint("Vertical", 82),
    Sketcher.Constraint("Vertical", 86),
    Sketcher.Constraint("Vertical", 89),
    Sketcher.Constraint("Symmetric", 15, 2, 82, 2, -1, 1),
    Sketcher.Constraint("Symmetric", 43, 2, 45, 2, -2),
    Sketcher.Constraint("Symmetric", 42, 2, 46, 2, -2),
    Sketcher.Constraint("Symmetric", 40, 2, 48, 2, -2),
    Sketcher.Constraint("Symmetric", 39, 2, 49, 2, -2),
    Sketcher.Constraint("Symmetric", 37, 2, 51, 2, -2),
    Sketcher.Constraint("Symmetric", 38, 2, 53, 2, -2),
    Sketcher.Constraint("Symmetric", 34, 2, 54, 2, -2),
    Sketcher.Constraint("Symmetric", 33, 2, 55, 2, -2),
    Sketcher.Constraint("Symmetric", 31, 2, 57, 2, -2),
    Sketcher.Constraint("Symmetric", 30, 2, 58, 2, -2),
    Sketcher.Constraint("Symmetric", 32, 2, 59, 2, -2),
    Sketcher.Constraint("Symmetric", 27, 2, 60, 2, -2),
    Sketcher.Constraint("Symmetric", 28, 2, 62, 2, -2),
    Sketcher.Constraint("Symmetric", 24, 2, 63, 2, -2),
    Sketcher.Constraint("Symmetric", 26, 2, 64, 2, -2),
    Sketcher.Constraint("Symmetric", 25, 2, 65, 2, -2),
    Sketcher.Constraint("Symmetric", 22, 2, 66, 2, -2),
    Sketcher.Constraint("Symmetric", 21, 2, 67, 2, -2),
    Sketcher.Constraint("Symmetric", 23, 2, 68, 2, -2),
    Sketcher.Constraint("Symmetric", 10, 2, 69, 2, -2),
    Sketcher.Constraint("Symmetric", 9, 2, 70, 2, -2),
    Sketcher.Constraint("Symmetric", 11, 2, 71, 2, -2),
    Sketcher.Constraint("Symmetric", 6, 2, 72, 2, -2),
    Sketcher.Constraint("Symmetric", 8, 2, 73, 2, -2),
    Sketcher.Constraint("Symmetric", 7, 2, 74, 2, -2),
    Sketcher.Constraint("Symmetric", 18, 2, 75, 2, -2),
    Sketcher.Constraint("Symmetric", 20, 2, 76, 2, -2),
    Sketcher.Constraint("Symmetric", 19, 2, 77, 2, -2),
    Sketcher.Constraint("Symmetric", 13, 2, 78, 2, -2),
    Sketcher.Constraint("Symmetric", 14, 2, 80, 2, -2),
    Sketcher.Constraint("Symmetric", 17, 2, 83, 2, -2),
    Sketcher.Constraint("Symmetric", 4, 2, 84, 2, -2),
    Sketcher.Constraint("Symmetric", 3, 2, 85, 2, -2),
    Sketcher.Constraint("Symmetric", 1, 2, 87, 2, -2),
    Sketcher.Constraint("Symmetric", 0, 2, 88, 2, -2),
    Sketcher.Constraint("PointOnObject", 15, 2, -1),
    Sketcher.Constraint("Parallel", 2, 4),
    Sketcher.Constraint("Parallel", 5, 6),
    Sketcher.Constraint("Parallel", 6, 9),
    Sketcher.Constraint("Parallel", 7, 10),
    Sketcher.Constraint("Parallel", 1, 11),
    Sketcher.Constraint("Parallel", 9, 15),
    Sketcher.Constraint("Parallel", 8, 17),
    Sketcher.Constraint("Parallel", 17, 18),
    Sketcher.Constraint("Parallel", 14, 20),
    Sketcher.Constraint("Parallel", 19, 21),
    Sketcher.Constraint("Parallel", 18, 22),
    Sketcher.Constraint("Parallel", 12, 23),
    Sketcher.Constraint("Parallel", 23, 24),
    Sketcher.Constraint("Parallel", 24, 28),
    Sketcher.Constraint("Parallel", 26, 29),
    Sketcher.Constraint("Parallel", 25, 30),
    Sketcher.Constraint("Parallel", 30, 36),
    Sketcher.Constraint("Parallel", 31, 38),
    Sketcher.Constraint("Parallel", 32, 40),
    Sketcher.Constraint("Parallel", 41, 42),
    Sketcher.Constraint("Parallel", 40, 43),
    Sketcher.Constraint("Parallel", 47, 48),
    Sketcher.Constraint("Parallel", 53, 59),
    Sketcher.Constraint("Parallel", 62, 65),
    Sketcher.Constraint("Parallel", 66, 80),
    Sketcher.Constraint("Parallel", 76, 81),
    Sketcher.Constraint("Parallel", 83, 84),
    Sketcher.Constraint("Parallel", 85, 87),
    Sketcher.Constraint("Horizontal", 13, 2, 27, 2),
    Sketcher.Constraint("Horizontal", 29, 2, 39, 2),
    Sketcher.Constraint("Horizontal", 44, 2, 47, 2),
    Sketcher.Constraint("Vertical", 2, 2, 3, 2),
    Sketcher.Constraint("Vertical", 5, 2, 8, 2),
    Sketcher.Constraint("Vertical", 8, 2, 20, 2),
    Sketcher.Constraint("Vertical", 16, 2, 22, 2),
    Sketcher.Constraint("Equal", 3, 16),
    Sketcher.Constraint("Equal", 7, 10),
    Sketcher.Constraint("Equal", 8, 17),
    Sketcher.Constraint("DistanceY", 12, 2, -1, 1, Q("90 mm")),
    Sketcher.Constraint("DistanceX", 15, 2, -1, 1, Q("55 mm")),
    Sketcher.Constraint("DistanceX", 33, 2, -1, 1, Q("40 mm")),
    Sketcher.Constraint("DistanceY", 33, 2, -1, 1, Q("10 mm")),
    Sketcher.Constraint("DistanceY", 40, 2, -1, 1, Q("75 mm")),
    Sketcher.Constraint("DistanceX", 0, 2, -1, 1, Q("119.5 mm")),
    Sketcher.Constraint("Distance", 36, Q("15.1151 mm")),
    Sketcher.Constraint("Distance", 40, Q("16.353199 mm")),
    Sketcher.Constraint("DistanceX", 13, 2, 13, 1, Q("49.228639 mm")),
    Sketcher.Constraint("DistanceX", 27, 2, 27, 1, Q("23.689909 mm")),
    Sketcher.Constraint("DistanceX", 39, 2, 39, 1, Q("18.48058 mm")),
    Sketcher.Constraint("DistanceY", 0, 1, 0, 2, Q("19.770039 mm")),
    Sketcher.Constraint("DistanceX", 1, 2, -1, 1, Q("92.065701 mm")),
    Sketcher.Constraint("DistanceY", 5, 2, -1, 1, Q("65.314101 mm")),
    Sketcher.Constraint("DistanceY", 9, 2, -1, 1, Q("37.427801 mm")),
    Sketcher.Constraint("DistanceY", 32, 2, -1, 1, Q("83.953299 mm")),
    Sketcher.Constraint("Distance", 4, Q("43.720132 mm")),
    Sketcher.Constraint("Distance", 7, Q("36.034428 mm")),
    Sketcher.Constraint("Distance", 8, Q("35.92084 mm")),
    Sketcher.Constraint("Distance", 11, Q("18.81669 mm")),
    Sketcher.Constraint("Distance", 15, Q("59.383491 mm")),
    Sketcher.Constraint("Distance", 18, Q("47.794191 mm")),
    Sketcher.Constraint("Distance", 25, Q("46.830161 mm")),
    Sketcher.Constraint("Distance", 28, Q("16.025888 mm")),
    Sketcher.Constraint("Distance", 38, Q("30.41996 mm")),
    Sketcher.Constraint("Distance", 42, Q("24.05215 mm")),
    Sketcher.Constraint("DistanceX", 35, 2, 35, 1, Q("30.530406 mm")),
    Sketcher.Constraint("DistanceX", 37, 1, 37, 2, Q("28.326368 mm")),
    Sketcher.Constraint("DistanceY", 33, 1, 33, 2, Q("17.221924 mm")),
    Sketcher.Constraint("DistanceY", 1, 2, -1, 1, Q("3.188252 mm")),
    Sketcher.Constraint("DistanceY", 7, 2, -1, 1, Q("56.449991 mm")),
    Sketcher.Constraint("DistanceX", 9, 2, -1, 1, Q("82.871182 mm")),
    Sketcher.Constraint("DistanceX", 12, 2, -1, 1, Q("66.21241 mm")),
    Sketcher.Constraint("DistanceY", 19, 2, -1, 1, Q("69.497518 mm")),
    Sketcher.Constraint("DistanceX", 23, 2, -1, 1, Q("64.958781 mm")),
    Sketcher.Constraint("DistanceY", 25, 2, -1, 1, Q("78.448321 mm")),
    Sketcher.Constraint("DistanceY", 28, 2, -1, 1, Q("74.817709 mm")),
    Sketcher.Constraint("DistanceX", 30, 2, -1, 1, Q("37.739862 mm")),
    Sketcher.Constraint("DistanceY", 31, 2, -1, 1, Q("42.37034 mm")),
    Sketcher.Constraint("DistanceX", 37, 2, -1, 1, Q("12.075039 mm")),
    Sketcher.Constraint("DistanceY", 42, 2, -1, 1, Q("62.54016 mm")),
    Sketcher.Constraint("Distance", 12, Q("18.639194 mm")),
    Sketcher.Constraint("Distance", 19, Q("15.974815 mm")),
    Sketcher.Constraint("DistanceY", 21, 2, -1, 1, Q("53.353957 mm")),
    Sketcher.Constraint("DistanceX", 24, 2, -1, 1, Q("46.602242 mm")),
    Sketcher.Constraint("DistanceX", 27, 2, -1, 1, Q("59.879022 mm")),
    Sketcher.Constraint("DistanceY", 36, 2, -1, 1, Q("33.221924 mm")),
    Sketcher.Constraint("DistanceX", 39, 2, -1, 1, Q("30.189114 mm")),
    Sketcher.Constraint("DistanceX", 42, 2, -1, 1, Q("18.264932 mm")),
])
pocket2 = body.newObject("PartDesign::Pocket", "Pocket001")
pocket2.Profile = sketch3
pocket2.Type = "ThroughAll"
pocket2.Reversed = True
doc.recompute()

fillet = body.newObject("PartDesign::Fillet", "Fillet")
fillet.Base = (pocket2, edges_at(pocket2, [
    (-40, 1.5, 0),
    (-130.5, 1.5, -20),
    (-130.5, 1.5, -40),
    (-130.5, 1.5, -65),
    (-130.5, 1.5, -85),
    (130.5, 1.5, -85),
    (130.5, 1.5, -65),
    (130.5, 1.5, -40),
    (130.5, 1.5, -20),
    (40, 1.5, 0),
]))
fillet.Radius = 1
doc.recompute()

fillet2 = body.newObject("PartDesign::Fillet", "Fillet001")
fillet2.Base = (fillet, edges_at(fillet, [
    (-18.265, 1.5, -62.54),
    (18.265, 1.5, -62.54),
    (-119.5, 1.5, -34.65),
    (-90.451, 1.5, -56.45),
    (-55, 1.5, -30.664),
    (119.5, 1.5, -34.65),
    (55, 1.5, -30.664),
    (90.451, 1.5, -56.45),
]))
fillet2.Radius = 5
doc.recompute()

fillet3 = body.newObject("PartDesign::Fillet", "Fillet002")
fillet3.Base = (fillet2, edges_at(fillet2, [
    (-37.74, 1.5, -54.665),
    (-57.657, 1.5, -64.686),
    (-79.927, 1.5, -1.514),
    (-66.212, 1.5, -90),
    (66.212, 1.5, -90),
    (37.74, 1.5, -54.665),
    (79.927, 1.5, -1.514),
    (57.657, 1.5, -64.686),
]))
fillet3.Radius = 3
doc.recompute()

fillet4 = body.newObject("PartDesign::Fillet", "Fillet003")
fillet4.Base = (fillet3, edges_at(fillet3, [
    (-40, 1.5, -27.222),
    (-9.47, 1.5, -27.222),
    (-40, 1.5, -10),
    (-38.54, 1.5, -48.222),
    (-12.075, 1.5, -33.222),
    (-40.401, 1.5, -33.222),
    (-34.105, 1.5, -83.953),
    (-16.048, 1.5, -42.37),
    (-64.959, 1.5, -67.551),
    (-55, 1.5, -38.083),
    (-75.994, 1.5, -53.354),
    (-11.709, 1.5, -90),
    (-23.676, 1.5, -75),
    (-30.189, 1.5, -90),
    (-3.265, 1.5, -81.342),
    (-3.265, 1.5, -27.997),
    (30.189, 1.5, -90),
    (23.676, 1.5, -75),
    (11.709, 1.5, -90),
    (3.265, 1.5, -27.997),
    (3.265, 1.5, -81.342),
    (-119.5, 1.5, -65.314),
    (-86.328, 1.5, -6.171),
    (-119.5, 1.5, -77.58),
    (-87.506, 1.5, -20.536),
    (-40.834, 1.5, -78.448),
    (-46.602, 1.5, -31.975),
    (-54.748, 1.5, -74.818),
    (-59.879, 1.5, -90),
    (-36.189, 1.5, -90),
    (-82.871, 1.5, -37.428),
    (-61.286, 1.5, 1.057),
    (-60.245, 1.5, -72.342),
    (-115.441, 1.5, -90),
    (-119.5, 1.5, -84.999),
    (-71.045, 1.5, -69.498),
    (-80.849, 1.5, -56.885),
    (-84.049, 1.5, -51.793),
    (-55, 1.5, 0),
    (86.328, 1.5, -6.171),
    (119.5, 1.5, -65.314),
    (55, 1.5, 0),
    (84.049, 1.5, -51.793),
    (71.045, 1.5, -69.498),
    (119.5, 1.5, -84.999),
    (80.849, 1.5, -56.885),
    (115.441, 1.5, -90),
    (60.245, 1.5, -72.342),
    (119.5, 1.5, -6.972),
    (92.066, 1.5, -3.188),
    (119.5, 1.5, -26.742),
    (16.048, 1.5, -42.37),
    (34.105, 1.5, -83.953),
    (54.748, 1.5, -74.818),
    (36.189, 1.5, -90),
    (59.879, 1.5, -90),
    (40, 1.5, -10),
    (9.47, 1.5, -27.222),
    (40, 1.5, -27.222),
    (40.401, 1.5, -33.222),
    (12.075, 1.5, -33.222),
    (38.54, 1.5, -48.222),
    (-40, 1.5, 10),
    (-127.5, 1.5, 0),
    (119.5, 1.5, -77.58),
    (87.506, 1.5, -20.536),
    (82.871, 1.5, -37.428),
    (61.286, 1.5, 1.057),
    (-127.5, 1.5, -105),
    (127.5, 1.5, -105),
    (46.602, 1.5, -31.975),
    (40.834, 1.5, -78.448),
    (64.959, 1.5, -67.551),
    (75.994, 1.5, -53.354),
    (55, 1.5, -38.083),
    (127.5, 1.5, 0),
    (-119.5, 1.5, -26.742),
    (-92.066, 1.5, -3.188),
    (-119.5, 1.5, -6.972),
    (40, 1.5, 10),
]))
fillet4.Radius = 2

doc.recompute()
